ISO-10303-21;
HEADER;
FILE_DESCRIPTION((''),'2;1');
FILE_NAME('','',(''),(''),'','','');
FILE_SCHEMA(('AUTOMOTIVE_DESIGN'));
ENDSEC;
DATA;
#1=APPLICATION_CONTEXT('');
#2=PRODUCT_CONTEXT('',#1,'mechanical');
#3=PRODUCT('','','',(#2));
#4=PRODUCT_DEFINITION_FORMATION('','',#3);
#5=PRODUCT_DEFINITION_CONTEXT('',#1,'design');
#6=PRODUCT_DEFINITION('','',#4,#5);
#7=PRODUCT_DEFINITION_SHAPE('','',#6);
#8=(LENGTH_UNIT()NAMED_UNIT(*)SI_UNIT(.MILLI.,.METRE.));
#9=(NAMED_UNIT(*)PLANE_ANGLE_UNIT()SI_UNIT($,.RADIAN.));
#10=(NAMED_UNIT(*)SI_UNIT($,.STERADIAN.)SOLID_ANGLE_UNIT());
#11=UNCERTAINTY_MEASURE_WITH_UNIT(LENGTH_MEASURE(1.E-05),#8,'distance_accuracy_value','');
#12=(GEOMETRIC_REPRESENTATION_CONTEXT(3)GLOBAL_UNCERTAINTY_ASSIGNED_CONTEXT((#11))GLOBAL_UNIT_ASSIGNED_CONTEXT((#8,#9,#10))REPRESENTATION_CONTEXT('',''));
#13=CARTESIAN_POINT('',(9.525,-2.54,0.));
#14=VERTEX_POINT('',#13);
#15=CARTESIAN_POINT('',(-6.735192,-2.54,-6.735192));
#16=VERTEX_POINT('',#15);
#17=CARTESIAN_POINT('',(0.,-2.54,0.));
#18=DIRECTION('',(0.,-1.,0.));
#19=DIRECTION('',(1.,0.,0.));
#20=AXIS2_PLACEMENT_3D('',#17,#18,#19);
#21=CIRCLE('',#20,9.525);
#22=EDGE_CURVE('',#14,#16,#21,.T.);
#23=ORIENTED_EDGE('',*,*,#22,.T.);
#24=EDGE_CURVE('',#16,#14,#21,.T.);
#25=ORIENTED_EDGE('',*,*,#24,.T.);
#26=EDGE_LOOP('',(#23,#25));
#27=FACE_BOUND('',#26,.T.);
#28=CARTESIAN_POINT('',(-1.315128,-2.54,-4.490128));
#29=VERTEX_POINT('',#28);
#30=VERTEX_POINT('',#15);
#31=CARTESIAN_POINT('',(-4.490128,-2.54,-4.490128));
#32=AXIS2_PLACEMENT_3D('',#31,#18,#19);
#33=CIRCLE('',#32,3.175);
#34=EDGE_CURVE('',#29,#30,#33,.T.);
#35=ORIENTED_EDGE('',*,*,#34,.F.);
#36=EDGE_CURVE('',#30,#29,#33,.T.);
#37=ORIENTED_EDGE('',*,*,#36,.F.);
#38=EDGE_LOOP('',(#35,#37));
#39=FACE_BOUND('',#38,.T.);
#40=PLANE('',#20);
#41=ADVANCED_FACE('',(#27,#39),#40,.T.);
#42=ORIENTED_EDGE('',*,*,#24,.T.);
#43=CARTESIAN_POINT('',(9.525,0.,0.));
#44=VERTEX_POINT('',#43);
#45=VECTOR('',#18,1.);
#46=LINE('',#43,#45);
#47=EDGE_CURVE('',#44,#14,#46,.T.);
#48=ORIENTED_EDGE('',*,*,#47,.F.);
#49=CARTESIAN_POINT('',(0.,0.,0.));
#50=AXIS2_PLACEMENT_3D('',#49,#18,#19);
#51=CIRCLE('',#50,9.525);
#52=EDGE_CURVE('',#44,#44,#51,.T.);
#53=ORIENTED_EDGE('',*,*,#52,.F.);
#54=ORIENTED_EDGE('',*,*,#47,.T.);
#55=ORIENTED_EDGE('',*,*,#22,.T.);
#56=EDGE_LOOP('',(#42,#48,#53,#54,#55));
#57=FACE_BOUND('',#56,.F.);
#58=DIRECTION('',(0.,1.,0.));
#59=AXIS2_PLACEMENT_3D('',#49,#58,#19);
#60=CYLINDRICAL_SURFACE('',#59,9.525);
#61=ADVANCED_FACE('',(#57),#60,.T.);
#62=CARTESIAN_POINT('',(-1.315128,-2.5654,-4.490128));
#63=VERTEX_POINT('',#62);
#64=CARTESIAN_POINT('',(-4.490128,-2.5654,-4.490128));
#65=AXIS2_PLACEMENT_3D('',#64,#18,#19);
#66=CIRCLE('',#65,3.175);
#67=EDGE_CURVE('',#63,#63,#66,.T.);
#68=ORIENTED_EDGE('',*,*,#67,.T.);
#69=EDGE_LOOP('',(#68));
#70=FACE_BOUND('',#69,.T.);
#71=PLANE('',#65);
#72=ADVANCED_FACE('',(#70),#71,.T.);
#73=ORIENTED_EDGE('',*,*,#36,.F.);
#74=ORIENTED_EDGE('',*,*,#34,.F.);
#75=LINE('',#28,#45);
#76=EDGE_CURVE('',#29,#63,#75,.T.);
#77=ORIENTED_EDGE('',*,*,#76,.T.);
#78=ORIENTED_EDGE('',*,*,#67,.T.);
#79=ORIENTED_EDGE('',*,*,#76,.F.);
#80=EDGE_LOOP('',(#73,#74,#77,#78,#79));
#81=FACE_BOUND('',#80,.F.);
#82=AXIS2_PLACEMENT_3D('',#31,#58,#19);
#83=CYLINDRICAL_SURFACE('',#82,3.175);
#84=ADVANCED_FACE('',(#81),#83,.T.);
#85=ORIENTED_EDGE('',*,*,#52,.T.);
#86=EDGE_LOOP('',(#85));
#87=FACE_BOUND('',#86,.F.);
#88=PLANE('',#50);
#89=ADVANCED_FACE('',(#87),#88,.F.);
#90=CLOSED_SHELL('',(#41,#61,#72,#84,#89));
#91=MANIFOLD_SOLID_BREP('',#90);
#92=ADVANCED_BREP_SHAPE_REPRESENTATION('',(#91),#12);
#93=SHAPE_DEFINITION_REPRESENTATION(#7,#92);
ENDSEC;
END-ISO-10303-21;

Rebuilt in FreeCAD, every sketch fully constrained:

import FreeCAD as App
import Part
import Sketcher
from FreeCAD import Vector
Q = App.Units.Quantity

doc = App.newDocument("Part")
params = doc.addObject("Spreadsheet::Sheet", "Params")
for row, (alias, value) in enumerate([
    ("sketch1_diameter", "0.75 in"),
    ("pad1_length", "0.1 in"),
    ("sketch2_diameter", "0.25 in"),
    ("pad2_length", "0.001 in"),
], start=1):
    params.set(f"A{row}", alias)
    params.set(f"B{row}", "=" + value)
    params.setAlias(f"B{row}", alias)

body = doc.addObject("PartDesign::Body", "Body")

# Sketch on XZ plane
sketch1 = body.newObject("Sketcher::SketchObject", "Sketch")
sketch1.AttachmentSupport = (doc.getObject("XZ_Plane"), [""])
sketch1.MapMode = "FlatFace"
sketch1.addGeometry(Part.Circle(Vector(0, 0, 0), Vector(0, 0, 1), 9.525), False)
sketch1.addConstraint(Sketcher.Constraint("Coincident", 0, 3, -1, 1))
sketch1.addConstraint(Sketcher.Constraint("Diameter", 0, Q("0.75 in")))
sketch1.setExpression("Constraints[1]", "Params.sketch1_diameter")
pad1 = body.newObject("PartDesign::Pad", "Pad")
pad1.Profile = sketch1
pad1.setExpression("Length", "Params.pad1_length")

# Sketch on XZ plane
sketch2 = body.newObject("Sketcher::SketchObject", "Sketch001")
sketch2.AttachmentSupport = (doc.getObject("XZ_Plane"), [""])
sketch2.MapMode = "FlatFace"
sketch2.AttachmentOffset = App.Placement(Vector(0, 0, 0.1 * 25.4), App.Rotation())
sketch2.addGeometry(Part.Circle(Vector(-4.490128, -4.490128, 0), Vector(0, 0, 1), 3.175), False)
sketch2.addConstraint(Sketcher.Constraint("Diameter", 0, Q("0.25 in")))
sketch2.addConstraint(Sketcher.Constraint("DistanceX", 0, 3, -1, 1, Q("4.490128 mm")))
sketch2.addConstraint(Sketcher.Constraint("DistanceY", 0, 3, -1, 1, Q("4.490128 mm")))
sketch2.setExpression("Constraints[0]", "Params.sketch2_diameter")
pad2 = body.newObject("PartDesign::Pad", "Pad001")
pad2.Profile = sketch2
pad2.setExpression("Length", "Params.pad2_length")

doc.recompute()
